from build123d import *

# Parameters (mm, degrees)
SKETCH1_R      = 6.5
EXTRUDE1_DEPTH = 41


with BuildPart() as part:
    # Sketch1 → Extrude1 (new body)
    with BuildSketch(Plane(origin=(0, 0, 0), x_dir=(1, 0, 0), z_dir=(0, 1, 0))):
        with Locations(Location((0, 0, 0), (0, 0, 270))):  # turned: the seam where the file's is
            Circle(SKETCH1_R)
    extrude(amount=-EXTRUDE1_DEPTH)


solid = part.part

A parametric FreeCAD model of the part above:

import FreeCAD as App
import Part
import Sketcher
Q = App.Units.Quantity

doc = App.newDocument("Part")
body = doc.addObject("PartDesign::Body", "Body")

sketch1 = body.newObject("Sketcher::SketchObject", "Sketch")
sketch1.AttachmentSupport = (doc.getObject("XZ_Plane"), [""])
sketch1.MapMode = "FlatFace"
sketch1.addGeometry(Part.Circle(App.Vector(0, 0, 0), App.Vector(0, 0, 1), 6), False)
sketch1.addConstraint([
    Sketcher.Constraint("Coincident", 0, 3, -1, 1),
    Sketcher.Constraint("Diameter", 0, Q("13 mm")),
])
pad1 = body.newObject("PartDesign::Pad", "Pad")
pad1.Profile = sketch1
pad1.Length = 41

doc.recompute()
